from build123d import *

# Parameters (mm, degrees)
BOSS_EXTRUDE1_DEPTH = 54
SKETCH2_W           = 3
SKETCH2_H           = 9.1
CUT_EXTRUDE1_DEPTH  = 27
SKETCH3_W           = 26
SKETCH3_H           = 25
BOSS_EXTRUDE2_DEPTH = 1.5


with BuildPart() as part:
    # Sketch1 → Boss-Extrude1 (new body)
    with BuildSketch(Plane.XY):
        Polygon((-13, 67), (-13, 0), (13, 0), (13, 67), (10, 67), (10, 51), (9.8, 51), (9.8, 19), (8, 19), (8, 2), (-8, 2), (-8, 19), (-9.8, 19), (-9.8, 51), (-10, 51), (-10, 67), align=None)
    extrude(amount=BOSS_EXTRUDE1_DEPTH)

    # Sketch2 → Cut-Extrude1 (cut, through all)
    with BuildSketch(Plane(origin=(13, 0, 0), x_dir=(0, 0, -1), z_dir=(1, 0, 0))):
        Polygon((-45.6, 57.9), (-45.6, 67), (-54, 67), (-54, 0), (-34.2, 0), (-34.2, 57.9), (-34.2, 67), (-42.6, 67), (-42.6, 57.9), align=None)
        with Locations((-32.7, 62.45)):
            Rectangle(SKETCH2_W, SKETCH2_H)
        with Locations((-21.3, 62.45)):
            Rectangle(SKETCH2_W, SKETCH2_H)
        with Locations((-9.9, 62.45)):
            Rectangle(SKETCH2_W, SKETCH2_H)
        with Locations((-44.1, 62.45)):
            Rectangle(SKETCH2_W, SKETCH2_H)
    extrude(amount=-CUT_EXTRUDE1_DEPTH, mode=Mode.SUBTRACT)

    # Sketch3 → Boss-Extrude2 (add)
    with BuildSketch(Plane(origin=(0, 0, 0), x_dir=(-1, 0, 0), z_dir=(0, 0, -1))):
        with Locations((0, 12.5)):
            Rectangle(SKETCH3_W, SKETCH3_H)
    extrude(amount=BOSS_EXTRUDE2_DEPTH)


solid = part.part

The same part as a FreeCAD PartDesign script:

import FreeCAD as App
import Part
import Sketcher
from FreeCAD import Vector


def add_polygon(sketch, points):
    """Adds a closed chain of lines whose ends are joined by coincident constraints."""
    first, n = sketch.GeometryCount, len(points)
    for a, b in zip(points, points[1:] + points[:1]):
        sketch.addGeometry(Part.LineSegment(App.Vector(*a, 0), App.Vector(*b, 0)), False)
    for i in range(n):
        sketch.addConstraint(Sketcher.Constraint("Coincident", first + i, 2, first + (i + 1) % n, 1))

doc = App.newDocument("Part")
body = doc.addObject("PartDesign::Body", "Body")

# Sketch on XY plane
sketch1 = body.newObject("Sketcher::SketchObject", "Sketch")
sketch1.AttachmentSupport = (doc.getObject("XY_Plane"), [""])
sketch1.MapMode = "FlatFace"
add_polygon(sketch1, [(-13, 67), (-13, 0), (13, 0), (13, 67), (10, 67), (10, 51), (9.8, 51), (9.8, 19), (8, 19), (8, 2), (-8, 2), (-8, 19), (-9.8, 19), (-9.8, 51), (-10, 51), (-10, 67)])  # lines 0-15
sketch1.addConstraint(Sketcher.Constraint("Vertical", 0))
sketch1.addConstraint(Sketcher.Constraint("Horizontal", 1))
sketch1.addConstraint(Sketcher.Constraint("Vertical", 2))
sketch1.addConstraint(Sketcher.Constraint("Horizontal", 3))
sketch1.addConstraint(Sketcher.Constraint("Vertical", 4))
sketch1.addConstraint(Sketcher.Constraint("Horizontal", 5))
sketch1.addConstraint(Sketcher.Constraint("Vertical", 6))
sketch1.addConstraint(Sketcher.Constraint("Horizontal", 7))
sketch1.addConstraint(Sketcher.Constraint("Vertical", 8))
sketch1.addConstraint(Sketcher.Constraint("Horizontal", 9))
sketch1.addConstraint(Sketcher.Constraint("Vertical", 10))
sketch1.addConstraint(Sketcher.Constraint("Horizontal", 11))
sketch1.addConstraint(Sketcher.Constraint("Vertical", 12))
sketch1.addConstraint(Sketcher.Constraint("Horizontal", 13))
sketch1.addConstraint(Sketcher.Constraint("Vertical", 14))
sketch1.addConstraint(Sketcher.Constraint("Horizontal", 15))
sketch1.addConstraint(Sketcher.Constraint("Symmetric", 0, 2, 1, 2, -1, 1))
sketch1.addConstraint(Sketcher.Constraint("Symmetric", 7, 2, 10, 2, -2))
sketch1.addConstraint(Sketcher.Constraint("Symmetric", 5, 2, 12, 2, -2))
sketch1.addConstraint(Sketcher.Constraint("Symmetric", 3, 2, 14, 2, -2))
sketch1.addConstraint(Sketcher.Constraint("Equal", 9, 4))
sketch1.addConstraint(Sketcher.Constraint("DistanceX", 1, 1, 1, 2, 26.0))
sketch1.addConstraint(Sketcher.Constraint("DistanceX", 3, 2, 3, 1, 3.0))
sketch1.addConstraint(Sketcher.Constraint("DistanceX", 9, 2, 9, 1, 16.0))
sketch1.addConstraint(Sketcher.Constraint("DistanceY", 0, 2, 0, 1, 67.0))
sketch1.addConstraint(Sketcher.Constraint("DistanceY", 6, 2, 6, 1, 32.0))
sketch1.addConstraint(Sketcher.Constraint("DistanceY", 8, 2, 8, 1, 17.0))
sketch1.addConstraint(Sketcher.Constraint("DistanceX", 5, 2, 5, 1, 0.2))
pad1 = body.newObject("PartDesign::Pad", "Pad")
pad1.Profile = sketch1
pad1.Length = 54

# Sketch on YZ plane
sketch2 = body.newObject("Sketcher::SketchObject", "Sketch001")
sketch2.AttachmentSupport = (doc.getObject("YZ_Plane"), [""])
sketch2.MapMode = "FlatFace"
sketch2.AttachmentOffset = App.Placement(Vector(0, 0, 13), App.Rotation())
add_polygon(sketch2, [(67, 54), (0, 54), (0, 34.2), (57.9, 34.2), (57.9, 31.2), (67, 31.2)])  # lines 0-5
add_polygon(sketch2, [(67, 22.8), (57.9, 22.8), (57.9, 19.8), (67, 19.8)])  # lines 6-9
add_polygon(sketch2, [(67, 11.4), (57.9, 11.4), (57.9, 8.4), (67, 8.4)])  # lines 10-13
sketch2.addConstraint(Sketcher.Constraint("Horizontal", 0))
sketch2.addConstraint(Sketcher.Constraint("Vertical", 1))
sketch2.addConstraint(Sketcher.Constraint("Horizontal", 2))
sketch2.addConstraint(Sketcher.Constraint("Vertical", 3))
sketch2.addConstraint(Sketcher.Constraint("Horizontal", 4))
sketch2.addConstraint(Sketcher.Constraint("Vertical", 5))
sketch2.addConstraint(Sketcher.Constraint("Horizontal", 6))
sketch2.addConstraint(Sketcher.Constraint("Vertical", 7))
sketch2.addConstraint(Sketcher.Constraint("Horizontal", 8))
sketch2.addConstraint(Sketcher.Constraint("Vertical", 9))
sketch2.addConstraint(Sketcher.Constraint("Horizontal", 10))
sketch2.addConstraint(Sketcher.Constraint("Vertical", 11))
sketch2.addConstraint(Sketcher.Constraint("Horizontal", 12))
sketch2.addConstraint(Sketcher.Constraint("Vertical", 13))
sketch2.addConstraint(Sketcher.Constraint("PointOnObject", 0, 2, -2))
sketch2.addConstraint(Sketcher.Constraint("Vertical", 3, 2, 6, 2))
sketch2.addConstraint(Sketcher.Constraint("Vertical", 5, 2, 8, 2))
sketch2.addConstraint(Sketcher.Constraint("Vertical", 7, 2, 10, 2))
sketch2.addConstraint(Sketcher.Constraint("Vertical", 9, 2, 12, 2))
sketch2.addConstraint(Sketcher.Constraint("Equal", 3, 7))
sketch2.addConstraint(Sketcher.Constraint("Equal", 9, 11))
sketch2.addConstraint(Sketcher.Constraint("DistanceX", 0, 2, 0, 1, 67.0))
sketch2.addConstraint(Sketcher.Constraint("DistanceY", 3, 2, 3, 1, 3.0))
sketch2.addConstraint(Sketcher.Constraint("DistanceX", 2, 1, 2, 2, 57.9))
sketch2.addConstraint(Sketcher.Constraint("DistanceY", 1, 2, 1, 1, 19.8))
sketch2.addConstraint(Sketcher.Constraint("DistanceY", -1, 1, 0, 2, 54.0))
sketch2.addConstraint(Sketcher.Constraint("DistanceY", -1, 1, 6, 2, 22.8))
sketch2.addConstraint(Sketcher.Constraint("DistanceY", -1, 1, 10, 2, 11.4))
pocket1 = body.newObject("PartDesign::Pocket", "Pocket")
pocket1.Profile = sketch2
pocket1.Type = "ThroughAll"

# Sketch on XY plane
sketch3 = body.newObject("Sketcher::SketchObject", "Sketch002")
sketch3.AttachmentSupport = (doc.getObject("XY_Plane"), [""])
sketch3.MapMode = "FlatFace"
add_polygon(sketch3, [(13, 25), (13, 0), (-13, 0), (-13, 25)])  # lines 0-3
sketch3.addConstraint(Sketcher.Constraint("Vertical", 0))
sketch3.addConstraint(Sketcher.Constraint("Horizontal", 1))
sketch3.addConstraint(Sketcher.Constraint("Vertical", 2))
sketch3.addConstraint(Sketcher.Constraint("Horizontal", 3))
sketch3.addConstraint(Sketcher.Constraint("Symmetric", 0, 2, 1, 2, -1, 1))
sketch3.addConstraint(Sketcher.Constraint("DistanceX", 1, 2, 1, 1, 26.0))
sketch3.addConstraint(Sketcher.Constraint("DistanceY", 0, 2, 0, 1, 25.0))
pad2 = body.newObject("PartDesign::Pad", "Pad001")
pad2.Profile = sketch3
pad2.Length = 1.5
pad2.Reversed = True

doc.recompute()
